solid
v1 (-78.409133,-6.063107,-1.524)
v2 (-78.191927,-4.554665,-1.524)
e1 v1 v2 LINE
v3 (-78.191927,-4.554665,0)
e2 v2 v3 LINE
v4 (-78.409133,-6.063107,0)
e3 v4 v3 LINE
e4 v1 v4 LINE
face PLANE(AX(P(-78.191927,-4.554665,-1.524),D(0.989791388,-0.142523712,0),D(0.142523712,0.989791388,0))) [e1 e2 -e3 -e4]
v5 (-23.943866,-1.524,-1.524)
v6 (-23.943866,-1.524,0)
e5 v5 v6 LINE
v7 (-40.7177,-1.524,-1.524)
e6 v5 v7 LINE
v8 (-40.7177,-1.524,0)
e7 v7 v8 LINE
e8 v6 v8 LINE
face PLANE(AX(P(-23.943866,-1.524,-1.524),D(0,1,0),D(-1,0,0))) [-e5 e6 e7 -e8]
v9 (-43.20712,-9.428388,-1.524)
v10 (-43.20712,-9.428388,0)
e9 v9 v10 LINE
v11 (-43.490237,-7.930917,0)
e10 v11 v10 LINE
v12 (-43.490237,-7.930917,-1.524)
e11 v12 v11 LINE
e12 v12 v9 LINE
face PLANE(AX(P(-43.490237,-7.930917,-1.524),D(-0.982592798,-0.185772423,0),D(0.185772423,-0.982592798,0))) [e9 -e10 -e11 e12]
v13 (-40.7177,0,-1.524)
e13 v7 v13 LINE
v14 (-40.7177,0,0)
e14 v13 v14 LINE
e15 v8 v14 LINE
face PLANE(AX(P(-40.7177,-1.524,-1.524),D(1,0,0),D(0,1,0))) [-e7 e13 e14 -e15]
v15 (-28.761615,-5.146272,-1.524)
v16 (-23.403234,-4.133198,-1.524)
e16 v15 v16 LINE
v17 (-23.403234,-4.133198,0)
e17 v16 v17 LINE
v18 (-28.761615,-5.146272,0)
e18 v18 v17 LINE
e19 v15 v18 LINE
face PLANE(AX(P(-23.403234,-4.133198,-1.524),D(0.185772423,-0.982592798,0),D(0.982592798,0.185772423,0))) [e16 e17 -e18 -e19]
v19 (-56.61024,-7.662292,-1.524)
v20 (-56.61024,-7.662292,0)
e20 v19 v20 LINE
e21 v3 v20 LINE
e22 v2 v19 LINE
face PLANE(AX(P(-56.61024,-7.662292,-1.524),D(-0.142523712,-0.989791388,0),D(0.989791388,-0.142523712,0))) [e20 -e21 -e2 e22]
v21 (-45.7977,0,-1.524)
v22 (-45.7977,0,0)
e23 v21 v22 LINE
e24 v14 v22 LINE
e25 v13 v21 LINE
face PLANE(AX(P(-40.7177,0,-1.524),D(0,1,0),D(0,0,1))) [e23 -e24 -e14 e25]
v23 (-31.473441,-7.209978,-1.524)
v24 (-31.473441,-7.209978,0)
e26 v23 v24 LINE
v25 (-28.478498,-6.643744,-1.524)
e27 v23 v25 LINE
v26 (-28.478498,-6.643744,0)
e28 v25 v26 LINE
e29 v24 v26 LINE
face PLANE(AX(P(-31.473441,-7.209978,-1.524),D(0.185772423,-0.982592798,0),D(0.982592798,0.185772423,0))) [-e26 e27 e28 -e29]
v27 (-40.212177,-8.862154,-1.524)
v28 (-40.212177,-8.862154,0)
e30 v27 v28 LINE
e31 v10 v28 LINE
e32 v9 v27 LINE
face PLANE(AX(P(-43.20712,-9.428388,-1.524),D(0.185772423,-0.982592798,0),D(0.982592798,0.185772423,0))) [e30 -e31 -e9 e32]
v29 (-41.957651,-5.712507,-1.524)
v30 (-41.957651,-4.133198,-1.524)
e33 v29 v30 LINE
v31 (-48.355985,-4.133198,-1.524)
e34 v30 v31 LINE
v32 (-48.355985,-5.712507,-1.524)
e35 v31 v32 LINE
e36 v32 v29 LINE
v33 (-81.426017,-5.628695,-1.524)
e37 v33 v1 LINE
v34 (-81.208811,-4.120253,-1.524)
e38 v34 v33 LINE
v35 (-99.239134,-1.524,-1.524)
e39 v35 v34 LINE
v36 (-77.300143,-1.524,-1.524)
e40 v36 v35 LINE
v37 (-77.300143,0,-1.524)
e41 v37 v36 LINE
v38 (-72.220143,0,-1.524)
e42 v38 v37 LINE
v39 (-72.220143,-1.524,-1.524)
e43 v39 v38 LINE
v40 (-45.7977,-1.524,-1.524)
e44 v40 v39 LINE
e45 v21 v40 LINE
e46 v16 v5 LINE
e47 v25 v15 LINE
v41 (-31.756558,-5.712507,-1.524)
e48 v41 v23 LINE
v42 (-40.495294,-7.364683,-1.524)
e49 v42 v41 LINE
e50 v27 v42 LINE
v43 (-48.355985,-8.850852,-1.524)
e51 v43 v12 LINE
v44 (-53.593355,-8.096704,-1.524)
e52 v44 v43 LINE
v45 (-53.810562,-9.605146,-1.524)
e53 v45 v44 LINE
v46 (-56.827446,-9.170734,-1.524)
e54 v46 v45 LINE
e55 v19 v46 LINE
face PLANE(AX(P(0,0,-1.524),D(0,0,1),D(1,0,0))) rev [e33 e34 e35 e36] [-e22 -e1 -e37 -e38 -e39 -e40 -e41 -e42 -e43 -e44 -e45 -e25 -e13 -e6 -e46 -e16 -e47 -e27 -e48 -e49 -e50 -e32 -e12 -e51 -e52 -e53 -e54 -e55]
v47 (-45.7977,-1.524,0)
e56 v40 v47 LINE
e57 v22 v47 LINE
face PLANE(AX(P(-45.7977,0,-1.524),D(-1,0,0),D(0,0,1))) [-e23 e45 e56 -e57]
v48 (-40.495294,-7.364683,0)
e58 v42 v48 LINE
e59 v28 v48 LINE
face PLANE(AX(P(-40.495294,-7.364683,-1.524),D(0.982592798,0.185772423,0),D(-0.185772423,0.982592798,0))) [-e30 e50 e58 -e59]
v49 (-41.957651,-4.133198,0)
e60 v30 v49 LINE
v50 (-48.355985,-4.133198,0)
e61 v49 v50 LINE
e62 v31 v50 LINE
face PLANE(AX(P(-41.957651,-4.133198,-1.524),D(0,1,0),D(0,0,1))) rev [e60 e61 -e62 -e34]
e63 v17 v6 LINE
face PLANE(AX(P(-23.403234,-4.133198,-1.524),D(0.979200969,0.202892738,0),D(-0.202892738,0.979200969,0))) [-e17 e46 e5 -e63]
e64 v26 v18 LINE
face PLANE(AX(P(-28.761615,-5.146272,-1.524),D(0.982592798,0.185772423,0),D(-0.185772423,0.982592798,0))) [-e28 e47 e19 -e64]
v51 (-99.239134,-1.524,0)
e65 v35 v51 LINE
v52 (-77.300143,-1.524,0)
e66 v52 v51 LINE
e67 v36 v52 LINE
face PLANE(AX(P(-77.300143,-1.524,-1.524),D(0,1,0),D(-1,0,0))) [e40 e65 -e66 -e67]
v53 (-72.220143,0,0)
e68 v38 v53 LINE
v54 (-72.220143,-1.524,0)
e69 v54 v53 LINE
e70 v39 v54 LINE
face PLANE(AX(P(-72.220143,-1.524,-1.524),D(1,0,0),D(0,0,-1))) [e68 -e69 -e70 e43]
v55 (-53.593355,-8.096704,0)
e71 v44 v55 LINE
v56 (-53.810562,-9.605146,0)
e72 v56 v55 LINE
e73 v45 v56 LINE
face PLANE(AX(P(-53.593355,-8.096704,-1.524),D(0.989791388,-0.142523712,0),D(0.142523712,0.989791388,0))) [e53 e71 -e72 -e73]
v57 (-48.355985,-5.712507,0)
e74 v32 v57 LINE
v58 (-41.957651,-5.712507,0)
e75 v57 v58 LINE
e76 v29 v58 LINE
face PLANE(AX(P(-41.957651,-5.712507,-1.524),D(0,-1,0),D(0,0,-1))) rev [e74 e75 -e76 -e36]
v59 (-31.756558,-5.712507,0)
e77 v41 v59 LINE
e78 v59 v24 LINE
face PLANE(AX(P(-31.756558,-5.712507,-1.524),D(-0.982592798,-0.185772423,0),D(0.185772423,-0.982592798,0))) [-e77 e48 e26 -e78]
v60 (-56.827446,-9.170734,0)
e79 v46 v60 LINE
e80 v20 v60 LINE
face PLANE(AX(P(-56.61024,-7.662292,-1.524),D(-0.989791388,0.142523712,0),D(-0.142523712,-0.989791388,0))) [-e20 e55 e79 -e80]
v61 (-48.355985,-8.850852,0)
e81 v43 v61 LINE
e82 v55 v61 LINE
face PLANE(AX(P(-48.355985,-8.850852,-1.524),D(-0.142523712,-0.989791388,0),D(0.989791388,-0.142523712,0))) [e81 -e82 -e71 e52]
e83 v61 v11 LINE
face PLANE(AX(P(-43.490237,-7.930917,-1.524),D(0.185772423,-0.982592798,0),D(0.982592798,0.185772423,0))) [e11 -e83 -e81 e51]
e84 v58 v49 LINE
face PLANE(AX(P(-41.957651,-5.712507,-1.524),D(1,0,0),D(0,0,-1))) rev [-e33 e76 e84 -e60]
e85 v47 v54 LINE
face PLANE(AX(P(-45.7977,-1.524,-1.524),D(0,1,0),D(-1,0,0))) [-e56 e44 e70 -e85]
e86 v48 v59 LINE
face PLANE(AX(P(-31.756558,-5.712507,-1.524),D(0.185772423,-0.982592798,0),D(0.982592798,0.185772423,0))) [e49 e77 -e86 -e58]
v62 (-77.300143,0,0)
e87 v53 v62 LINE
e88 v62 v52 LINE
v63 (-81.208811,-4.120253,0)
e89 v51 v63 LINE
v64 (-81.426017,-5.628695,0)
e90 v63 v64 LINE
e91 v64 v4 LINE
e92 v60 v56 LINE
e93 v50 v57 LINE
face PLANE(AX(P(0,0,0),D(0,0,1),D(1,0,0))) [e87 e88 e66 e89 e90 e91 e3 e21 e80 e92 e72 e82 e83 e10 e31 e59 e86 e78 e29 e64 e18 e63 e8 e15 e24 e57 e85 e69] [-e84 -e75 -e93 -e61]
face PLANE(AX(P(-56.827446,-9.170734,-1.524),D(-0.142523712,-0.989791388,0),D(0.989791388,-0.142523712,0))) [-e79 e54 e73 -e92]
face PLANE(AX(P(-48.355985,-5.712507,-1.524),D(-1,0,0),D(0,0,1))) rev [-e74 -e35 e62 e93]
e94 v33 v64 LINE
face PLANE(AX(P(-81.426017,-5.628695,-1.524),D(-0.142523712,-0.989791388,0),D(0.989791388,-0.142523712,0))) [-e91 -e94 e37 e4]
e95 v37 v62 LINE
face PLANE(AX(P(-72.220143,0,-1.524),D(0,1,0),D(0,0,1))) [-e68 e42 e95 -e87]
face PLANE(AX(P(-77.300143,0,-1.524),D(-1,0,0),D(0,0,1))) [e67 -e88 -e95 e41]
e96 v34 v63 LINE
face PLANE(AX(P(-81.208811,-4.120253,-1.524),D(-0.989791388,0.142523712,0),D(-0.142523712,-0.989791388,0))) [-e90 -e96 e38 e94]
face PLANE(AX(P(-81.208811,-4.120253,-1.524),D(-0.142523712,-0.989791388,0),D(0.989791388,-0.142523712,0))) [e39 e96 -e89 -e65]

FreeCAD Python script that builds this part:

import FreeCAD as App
import Part
import Sketcher

V = App.Vector
Q = App.Units.Quantity

doc = App.newDocument("Part")
body = doc.addObject("PartDesign::Body", "Body")

sketch1 = body.newObject("Sketcher::SketchObject", "Sketch")
sketch1.AttachmentSupport = (doc.getObject("XY_Plane"), [""])
sketch1.MapMode = "FlatFace"
sketch1.addGeometry(Part.LineSegment(V(-28.761615, -5.146272, 0), V(-23.403234, -4.133198, 0)), False)
sketch1.addGeometry(Part.LineSegment(V(-23.403234, -4.133198, 0), V(-23.943866, -1.524, 0)), False)
sketch1.addGeometry(Part.LineSegment(V(-23.943866, -1.524, 0), V(-40.7177, -1.524, 0)), False)
sketch1.addGeometry(Part.LineSegment(V(-40.7177, -1.524, 0), V(-40.7177, 0, 0)), False)
sketch1.addGeometry(Part.LineSegment(V(-40.7177, 0, 0), V(-45.7977, 0, 0)), False)
sketch1.addGeometry(Part.LineSegment(V(-45.7977, 0, 0), V(-45.7977, -1.524, 0)), False)
sketch1.addGeometry(Part.LineSegment(V(-45.7977, -1.524, 0), V(-72.220143, -1.524, 0)), False)
sketch1.addGeometry(Part.LineSegment(V(-72.220143, -1.524, 0), V(-72.220143, 0, 0)), False)
sketch1.addGeometry(Part.LineSegment(V(-72.220143, 0, 0), V(-77.300143, 0, 0)), False)
sketch1.addGeometry(Part.LineSegment(V(-77.300143, 0, 0), V(-77.300143, -1.524, 0)), False)
sketch1.addGeometry(Part.LineSegment(V(-77.300143, -1.524, 0), V(-99.239134, -1.524, 0)), False)
sketch1.addGeometry(Part.LineSegment(V(-99.239134, -1.524, 0), V(-81.208811, -4.120253, 0)), False)
sketch1.addGeometry(Part.LineSegment(V(-81.208811, -4.120253, 0), V(-81.426017, -5.628695, 0)), False)
sketch1.addGeometry(Part.LineSegment(V(-81.426017, -5.628695, 0), V(-78.409133, -6.063107, 0)), False)
sketch1.addGeometry(Part.LineSegment(V(-78.409133, -6.063107, 0), V(-78.191927, -4.554665, 0)), False)
sketch1.addGeometry(Part.LineSegment(V(-78.191927, -4.554665, 0), V(-56.61024, -7.662292, 0)), False)
sketch1.addGeometry(Part.LineSegment(V(-56.61024, -7.662292, 0), V(-56.827446, -9.170734, 0)), False)
sketch1.addGeometry(Part.LineSegment(V(-56.827446, -9.170734, 0), V(-53.810562, -9.605146, 0)), False)
sketch1.addGeometry(Part.LineSegment(V(-53.810562, -9.605146, 0), V(-53.593355, -8.096704, 0)), False)
sketch1.addGeometry(Part.LineSegment(V(-53.593355, -8.096704, 0), V(-48.355985, -8.850852, 0)), False)
sketch1.addGeometry(Part.LineSegment(V(-48.355985, -8.850852, 0), V(-43.490237, -7.930917, 0)), False)
sketch1.addGeometry(Part.LineSegment(V(-43.490237, -7.930917, 0), V(-43.20712, -9.428388, 0)), False)
sketch1.addGeometry(Part.LineSegment(V(-43.20712, -9.428388, 0), V(-40.212177, -8.862154, 0)), False)
sketch1.addGeometry(Part.LineSegment(V(-40.212177, -8.862154, 0), V(-40.495294, -7.364683, 0)), False)
sketch1.addGeometry(Part.LineSegment(V(-40.495294, -7.364683, 0), V(-31.756558, -5.712507, 0)), False)
sketch1.addGeometry(Part.LineSegment(V(-31.756558, -5.712507, 0), V(-31.473441, -7.209978, 0)), False)
sketch1.addGeometry(Part.LineSegment(V(-31.473441, -7.209978, 0), V(-28.478498, -6.643744, 0)), False)
sketch1.addGeometry(Part.LineSegment(V(-28.478498, -6.643744, 0), V(-28.761615, -5.146272, 0)), False)
sketch1.addGeometry(Part.LineSegment(V(-48.355985, -5.712507, 0), V(-48.355985, -4.133198, 0)), False)
sketch1.addGeometry(Part.LineSegment(V(-48.355985, -4.133198, 0), V(-41.957651, -4.133198, 0)), False)
sketch1.addGeometry(Part.LineSegment(V(-41.957651, -4.133198, 0), V(-41.957651, -5.712507, 0)), False)
sketch1.addGeometry(Part.LineSegment(V(-41.957651, -5.712507, 0), V(-48.355985, -5.712507, 0)), False)
sketch1.addConstraint(Sketcher.Constraint("Coincident", 0, 2, 1, 1))
sketch1.addConstraint(Sketcher.Constraint("Coincident", 1, 2, 2, 1))
sketch1.addConstraint(Sketcher.Constraint("Coincident", 2, 2, 3, 1))
sketch1.addConstraint(Sketcher.Constraint("Coincident", 3, 2, 4, 1))
sketch1.addConstraint(Sketcher.Constraint("Coincident", 4, 2, 5, 1))
sketch1.addConstraint(Sketcher.Constraint("Coincident", 5, 2, 6, 1))
sketch1.addConstraint(Sketcher.Constraint("Coincident", 6, 2, 7, 1))
sketch1.addConstraint(Sketcher.Constraint("Coincident", 7, 2, 8, 1))
sketch1.addConstraint(Sketcher.Constraint("Coincident", 8, 2, 9, 1))
sketch1.addConstraint(Sketcher.Constraint("Coincident", 9, 2, 10, 1))
sketch1.addConstraint(Sketcher.Constraint("Coincident", 10, 2, 11, 1))
sketch1.addConstraint(Sketcher.Constraint("Coincident", 11, 2, 12, 1))
sketch1.addConstraint(Sketcher.Constraint("Coincident", 12, 2, 13, 1))
sketch1.addConstraint(Sketcher.Constraint("Coincident", 13, 2, 14, 1))
sketch1.addConstraint(Sketcher.Constraint("Coincident", 14, 2, 15, 1))
sketch1.addConstraint(Sketcher.Constraint("Coincident", 15, 2, 16, 1))
sketch1.addConstraint(Sketcher.Constraint("Coincident", 16, 2, 17, 1))
sketch1.addConstraint(Sketcher.Constraint("Coincident", 17, 2, 18, 1))
sketch1.addConstraint(Sketcher.Constraint("Coincident", 18, 2, 19, 1))
sketch1.addConstraint(Sketcher.Constraint("Coincident", 19, 2, 20, 1))
sketch1.addConstraint(Sketcher.Constraint("Coincident", 20, 2, 21, 1))
sketch1.addConstraint(Sketcher.Constraint("Coincident", 21, 2, 22, 1))
sketch1.addConstraint(Sketcher.Constraint("Coincident", 22, 2, 23, 1))
sketch1.addConstraint(Sketcher.Constraint("Coincident", 23, 2, 24, 1))
sketch1.addConstraint(Sketcher.Constraint("Coincident", 24, 2, 25, 1))
sketch1.addConstraint(Sketcher.Constraint("Coincident", 25, 2, 26, 1))
sketch1.addConstraint(Sketcher.Constraint("Coincident", 26, 2, 27, 1))
sketch1.addConstraint(Sketcher.Constraint("Coincident", 27, 2, 0, 1))
sketch1.addConstraint(Sketcher.Constraint("Coincident", 28, 2, 29, 1))
sketch1.addConstraint(Sketcher.Constraint("Coincident", 29, 2, 30, 1))
sketch1.addConstraint(Sketcher.Constraint("Coincident", 30, 2, 31, 1))
sketch1.addConstraint(Sketcher.Constraint("Coincident", 31, 2, 28, 1))
sketch1.addConstraint(Sketcher.Constraint("Horizontal", 2))
sketch1.addConstraint(Sketcher.Constraint("Vertical", 3))
sketch1.addConstraint(Sketcher.Constraint("Horizontal", 4))
sketch1.addConstraint(Sketcher.Constraint("Vertical", 5))
sketch1.addConstraint(Sketcher.Constraint("Horizontal", 6))
sketch1.addConstraint(Sketcher.Constraint("Vertical", 7))
sketch1.addConstraint(Sketcher.Constraint("Horizontal", 8))
sketch1.addConstraint(Sketcher.Constraint("Vertical", 9))
sketch1.addConstraint(Sketcher.Constraint("Horizontal", 10))
sketch1.addConstraint(Sketcher.Constraint("Vertical", 28))
sketch1.addConstraint(Sketcher.Constraint("Horizontal", 29))
sketch1.addConstraint(Sketcher.Constraint("Vertical", 30))
sketch1.addConstraint(Sketcher.Constraint("Horizontal", 31))
sketch1.addConstraint(Sketcher.Constraint("PointOnObject", 3, 2, -1))
sketch1.addConstraint(Sketcher.Constraint("PointOnObject", 7, 2, -1))
sketch1.addConstraint(Sketcher.Constraint("DistanceX", 4, 2, 4, 1, Q("0.2 in")))
sketch1.addConstraint(Sketcher.Constraint("DistanceX", 8, 2, 8, 1, Q("0.2 in")))
sketch1.addConstraint(Sketcher.Constraint("DistanceY", 3, 1, 3, 2, Q("0.06 in")))
sketch1.addConstraint(Sketcher.Constraint("DistanceY", 5, 2, 5, 1, Q("0.06 in")))
sketch1.addConstraint(Sketcher.Constraint("DistanceY", 9, 2, 9, 1, Q("0.06 in")))
sketch1.addConstraint(Sketcher.Constraint("Distance", 12, Q("0.06 in")))
sketch1.addConstraint(Sketcher.Constraint("Distance", 13, Q("0.12 in")))
sketch1.addConstraint(Sketcher.Constraint("Distance", 14, Q("0.06 in")))
sketch1.addConstraint(Sketcher.Constraint("Distance", 16, Q("0.06 in")))
sketch1.addConstraint(Sketcher.Constraint("Distance", 17, Q("0.12 in")))
sketch1.addConstraint(Sketcher.Constraint("Distance", 18, Q("0.06 in")))
sketch1.addConstraint(Sketcher.Constraint("Distance", 21, Q("0.06 in")))
sketch1.addConstraint(Sketcher.Constraint("Distance", 22, Q("0.12 in")))
sketch1.addConstraint(Sketcher.Constraint("Distance", 23, Q("0.06 in")))
sketch1.addConstraint(Sketcher.Constraint("Distance", 25, Q("0.06 in")))
sketch1.addConstraint(Sketcher.Constraint("Distance", 26, Q("0.12 in")))
sketch1.addConstraint(Sketcher.Constraint("Distance", 27, Q("0.06 in")))
sketch1.addConstraint(Sketcher.Constraint("DistanceX", 10, 2, 10, 1, Q("21.938991 mm")))
sketch1.addConstraint(Sketcher.Constraint("DistanceY", 28, 1, 28, 2, Q("1.579309 mm")))
sketch1.addConstraint(Sketcher.Constraint("DistanceY", 0, 2, -1, 1, Q("4.133198 mm")))
sketch1.addConstraint(Sketcher.Constraint("DistanceX", 2, 2, -1, 1, Q("40.7177 mm")))
sketch1.addConstraint(Sketcher.Constraint("DistanceX", 26, 2, -1, 1, Q("28.478498 mm")))
sketch1.addConstraint(Sketcher.Constraint("DistanceY", 28, 2, -1, 1, Q("4.133198 mm")))
sketch1.addConstraint(Sketcher.Constraint("DistanceY", 22, 2, 19, 2, Q("0.011302 mm")))
sketch1.addConstraint(Sketcher.Constraint("Distance", 0, Q("5.453308 mm")))
sketch1.addConstraint(Sketcher.Constraint("Distance", 1, Q("2.66462 mm")))
sketch1.addConstraint(Sketcher.Constraint("Distance", 15, Q("21.804279 mm")))
sketch1.addConstraint(Sketcher.Constraint("DistanceX", 2, 2, 2, 1, Q("16.773834 mm")))
sketch1.addConstraint(Sketcher.Constraint("DistanceX", 6, 2, 6, 1, Q("26.422443 mm")))
sketch1.addConstraint(Sketcher.Constraint("DistanceX", 29, 1, 29, 2, Q("6.398335 mm")))
sketch1.addConstraint(Sketcher.Constraint("DistanceX", 11, 2, -1, 1, Q("81.208811 mm")))
sketch1.addConstraint(Sketcher.Constraint("DistanceX", 15, 2, -1, 1, Q("56.61024 mm")))
sketch1.addConstraint(Sketcher.Constraint("DistanceY", 15, 2, -1, 1, Q("7.662292 mm")))
sketch1.addConstraint(Sketcher.Constraint("DistanceX", 17, 2, -1, 1, Q("53.810562 mm")))
sketch1.addConstraint(Sketcher.Constraint("DistanceX", 21, 2, -1, 1, Q("43.20712 mm")))
sketch1.addConstraint(Sketcher.Constraint("DistanceY", 21, 2, -1, 1, Q("9.428388 mm")))
sketch1.addConstraint(Sketcher.Constraint("DistanceX", 24, 2, -1, 1, Q("31.756558 mm")))
sketch1.addConstraint(Sketcher.Constraint("DistanceX", 25, 2, -1, 1, Q("31.473441 mm")))
sketch1.addConstraint(Sketcher.Constraint("DistanceY", 25, 2, -1, 1, Q("7.209978 mm")))
sketch1.addConstraint(Sketcher.Constraint("DistanceX", 29, 2, -1, 1, Q("41.957651 mm")))
sketch1.addConstraint(Sketcher.Constraint("DistanceX", 11, 2, 13, 2, Q("2.799678 mm")))
sketch1.addConstraint(Sketcher.Constraint("DistanceX", 12, 2, 14, 2, Q("3.23409 mm")))
sketch1.addConstraint(Sketcher.Constraint("DistanceY", 12, 2, 14, 2, Q("1.07403 mm")))
sketch1.addConstraint(Sketcher.Constraint("DistanceX", 16, 2, 18, 2, Q("3.23409 mm")))
sketch1.addConstraint(Sketcher.Constraint("DistanceY", 16, 2, 18, 2, Q("1.07403 mm")))
sketch1.addConstraint(Sketcher.Constraint("DistanceX", 18, 2, 19, 2, Q("5.23737 mm")))
sketch1.addConstraint(Sketcher.Constraint("DistanceY", 19, 2, 18, 2, Q("0.754148 mm")))
sketch1.addConstraint(Sketcher.Constraint("DistanceX", 19, 2, 20, 2, Q("4.865748 mm")))
sketch1.addConstraint(Sketcher.Constraint("DistanceY", 22, 2, 23, 2, Q("1.497471 mm")))
pad1 = body.newObject("PartDesign::Pad", "Pad")
pad1.Profile = sketch1
pad1.Length = Q("0.06 in")
pad1.Reversed = True

doc.recompute()
